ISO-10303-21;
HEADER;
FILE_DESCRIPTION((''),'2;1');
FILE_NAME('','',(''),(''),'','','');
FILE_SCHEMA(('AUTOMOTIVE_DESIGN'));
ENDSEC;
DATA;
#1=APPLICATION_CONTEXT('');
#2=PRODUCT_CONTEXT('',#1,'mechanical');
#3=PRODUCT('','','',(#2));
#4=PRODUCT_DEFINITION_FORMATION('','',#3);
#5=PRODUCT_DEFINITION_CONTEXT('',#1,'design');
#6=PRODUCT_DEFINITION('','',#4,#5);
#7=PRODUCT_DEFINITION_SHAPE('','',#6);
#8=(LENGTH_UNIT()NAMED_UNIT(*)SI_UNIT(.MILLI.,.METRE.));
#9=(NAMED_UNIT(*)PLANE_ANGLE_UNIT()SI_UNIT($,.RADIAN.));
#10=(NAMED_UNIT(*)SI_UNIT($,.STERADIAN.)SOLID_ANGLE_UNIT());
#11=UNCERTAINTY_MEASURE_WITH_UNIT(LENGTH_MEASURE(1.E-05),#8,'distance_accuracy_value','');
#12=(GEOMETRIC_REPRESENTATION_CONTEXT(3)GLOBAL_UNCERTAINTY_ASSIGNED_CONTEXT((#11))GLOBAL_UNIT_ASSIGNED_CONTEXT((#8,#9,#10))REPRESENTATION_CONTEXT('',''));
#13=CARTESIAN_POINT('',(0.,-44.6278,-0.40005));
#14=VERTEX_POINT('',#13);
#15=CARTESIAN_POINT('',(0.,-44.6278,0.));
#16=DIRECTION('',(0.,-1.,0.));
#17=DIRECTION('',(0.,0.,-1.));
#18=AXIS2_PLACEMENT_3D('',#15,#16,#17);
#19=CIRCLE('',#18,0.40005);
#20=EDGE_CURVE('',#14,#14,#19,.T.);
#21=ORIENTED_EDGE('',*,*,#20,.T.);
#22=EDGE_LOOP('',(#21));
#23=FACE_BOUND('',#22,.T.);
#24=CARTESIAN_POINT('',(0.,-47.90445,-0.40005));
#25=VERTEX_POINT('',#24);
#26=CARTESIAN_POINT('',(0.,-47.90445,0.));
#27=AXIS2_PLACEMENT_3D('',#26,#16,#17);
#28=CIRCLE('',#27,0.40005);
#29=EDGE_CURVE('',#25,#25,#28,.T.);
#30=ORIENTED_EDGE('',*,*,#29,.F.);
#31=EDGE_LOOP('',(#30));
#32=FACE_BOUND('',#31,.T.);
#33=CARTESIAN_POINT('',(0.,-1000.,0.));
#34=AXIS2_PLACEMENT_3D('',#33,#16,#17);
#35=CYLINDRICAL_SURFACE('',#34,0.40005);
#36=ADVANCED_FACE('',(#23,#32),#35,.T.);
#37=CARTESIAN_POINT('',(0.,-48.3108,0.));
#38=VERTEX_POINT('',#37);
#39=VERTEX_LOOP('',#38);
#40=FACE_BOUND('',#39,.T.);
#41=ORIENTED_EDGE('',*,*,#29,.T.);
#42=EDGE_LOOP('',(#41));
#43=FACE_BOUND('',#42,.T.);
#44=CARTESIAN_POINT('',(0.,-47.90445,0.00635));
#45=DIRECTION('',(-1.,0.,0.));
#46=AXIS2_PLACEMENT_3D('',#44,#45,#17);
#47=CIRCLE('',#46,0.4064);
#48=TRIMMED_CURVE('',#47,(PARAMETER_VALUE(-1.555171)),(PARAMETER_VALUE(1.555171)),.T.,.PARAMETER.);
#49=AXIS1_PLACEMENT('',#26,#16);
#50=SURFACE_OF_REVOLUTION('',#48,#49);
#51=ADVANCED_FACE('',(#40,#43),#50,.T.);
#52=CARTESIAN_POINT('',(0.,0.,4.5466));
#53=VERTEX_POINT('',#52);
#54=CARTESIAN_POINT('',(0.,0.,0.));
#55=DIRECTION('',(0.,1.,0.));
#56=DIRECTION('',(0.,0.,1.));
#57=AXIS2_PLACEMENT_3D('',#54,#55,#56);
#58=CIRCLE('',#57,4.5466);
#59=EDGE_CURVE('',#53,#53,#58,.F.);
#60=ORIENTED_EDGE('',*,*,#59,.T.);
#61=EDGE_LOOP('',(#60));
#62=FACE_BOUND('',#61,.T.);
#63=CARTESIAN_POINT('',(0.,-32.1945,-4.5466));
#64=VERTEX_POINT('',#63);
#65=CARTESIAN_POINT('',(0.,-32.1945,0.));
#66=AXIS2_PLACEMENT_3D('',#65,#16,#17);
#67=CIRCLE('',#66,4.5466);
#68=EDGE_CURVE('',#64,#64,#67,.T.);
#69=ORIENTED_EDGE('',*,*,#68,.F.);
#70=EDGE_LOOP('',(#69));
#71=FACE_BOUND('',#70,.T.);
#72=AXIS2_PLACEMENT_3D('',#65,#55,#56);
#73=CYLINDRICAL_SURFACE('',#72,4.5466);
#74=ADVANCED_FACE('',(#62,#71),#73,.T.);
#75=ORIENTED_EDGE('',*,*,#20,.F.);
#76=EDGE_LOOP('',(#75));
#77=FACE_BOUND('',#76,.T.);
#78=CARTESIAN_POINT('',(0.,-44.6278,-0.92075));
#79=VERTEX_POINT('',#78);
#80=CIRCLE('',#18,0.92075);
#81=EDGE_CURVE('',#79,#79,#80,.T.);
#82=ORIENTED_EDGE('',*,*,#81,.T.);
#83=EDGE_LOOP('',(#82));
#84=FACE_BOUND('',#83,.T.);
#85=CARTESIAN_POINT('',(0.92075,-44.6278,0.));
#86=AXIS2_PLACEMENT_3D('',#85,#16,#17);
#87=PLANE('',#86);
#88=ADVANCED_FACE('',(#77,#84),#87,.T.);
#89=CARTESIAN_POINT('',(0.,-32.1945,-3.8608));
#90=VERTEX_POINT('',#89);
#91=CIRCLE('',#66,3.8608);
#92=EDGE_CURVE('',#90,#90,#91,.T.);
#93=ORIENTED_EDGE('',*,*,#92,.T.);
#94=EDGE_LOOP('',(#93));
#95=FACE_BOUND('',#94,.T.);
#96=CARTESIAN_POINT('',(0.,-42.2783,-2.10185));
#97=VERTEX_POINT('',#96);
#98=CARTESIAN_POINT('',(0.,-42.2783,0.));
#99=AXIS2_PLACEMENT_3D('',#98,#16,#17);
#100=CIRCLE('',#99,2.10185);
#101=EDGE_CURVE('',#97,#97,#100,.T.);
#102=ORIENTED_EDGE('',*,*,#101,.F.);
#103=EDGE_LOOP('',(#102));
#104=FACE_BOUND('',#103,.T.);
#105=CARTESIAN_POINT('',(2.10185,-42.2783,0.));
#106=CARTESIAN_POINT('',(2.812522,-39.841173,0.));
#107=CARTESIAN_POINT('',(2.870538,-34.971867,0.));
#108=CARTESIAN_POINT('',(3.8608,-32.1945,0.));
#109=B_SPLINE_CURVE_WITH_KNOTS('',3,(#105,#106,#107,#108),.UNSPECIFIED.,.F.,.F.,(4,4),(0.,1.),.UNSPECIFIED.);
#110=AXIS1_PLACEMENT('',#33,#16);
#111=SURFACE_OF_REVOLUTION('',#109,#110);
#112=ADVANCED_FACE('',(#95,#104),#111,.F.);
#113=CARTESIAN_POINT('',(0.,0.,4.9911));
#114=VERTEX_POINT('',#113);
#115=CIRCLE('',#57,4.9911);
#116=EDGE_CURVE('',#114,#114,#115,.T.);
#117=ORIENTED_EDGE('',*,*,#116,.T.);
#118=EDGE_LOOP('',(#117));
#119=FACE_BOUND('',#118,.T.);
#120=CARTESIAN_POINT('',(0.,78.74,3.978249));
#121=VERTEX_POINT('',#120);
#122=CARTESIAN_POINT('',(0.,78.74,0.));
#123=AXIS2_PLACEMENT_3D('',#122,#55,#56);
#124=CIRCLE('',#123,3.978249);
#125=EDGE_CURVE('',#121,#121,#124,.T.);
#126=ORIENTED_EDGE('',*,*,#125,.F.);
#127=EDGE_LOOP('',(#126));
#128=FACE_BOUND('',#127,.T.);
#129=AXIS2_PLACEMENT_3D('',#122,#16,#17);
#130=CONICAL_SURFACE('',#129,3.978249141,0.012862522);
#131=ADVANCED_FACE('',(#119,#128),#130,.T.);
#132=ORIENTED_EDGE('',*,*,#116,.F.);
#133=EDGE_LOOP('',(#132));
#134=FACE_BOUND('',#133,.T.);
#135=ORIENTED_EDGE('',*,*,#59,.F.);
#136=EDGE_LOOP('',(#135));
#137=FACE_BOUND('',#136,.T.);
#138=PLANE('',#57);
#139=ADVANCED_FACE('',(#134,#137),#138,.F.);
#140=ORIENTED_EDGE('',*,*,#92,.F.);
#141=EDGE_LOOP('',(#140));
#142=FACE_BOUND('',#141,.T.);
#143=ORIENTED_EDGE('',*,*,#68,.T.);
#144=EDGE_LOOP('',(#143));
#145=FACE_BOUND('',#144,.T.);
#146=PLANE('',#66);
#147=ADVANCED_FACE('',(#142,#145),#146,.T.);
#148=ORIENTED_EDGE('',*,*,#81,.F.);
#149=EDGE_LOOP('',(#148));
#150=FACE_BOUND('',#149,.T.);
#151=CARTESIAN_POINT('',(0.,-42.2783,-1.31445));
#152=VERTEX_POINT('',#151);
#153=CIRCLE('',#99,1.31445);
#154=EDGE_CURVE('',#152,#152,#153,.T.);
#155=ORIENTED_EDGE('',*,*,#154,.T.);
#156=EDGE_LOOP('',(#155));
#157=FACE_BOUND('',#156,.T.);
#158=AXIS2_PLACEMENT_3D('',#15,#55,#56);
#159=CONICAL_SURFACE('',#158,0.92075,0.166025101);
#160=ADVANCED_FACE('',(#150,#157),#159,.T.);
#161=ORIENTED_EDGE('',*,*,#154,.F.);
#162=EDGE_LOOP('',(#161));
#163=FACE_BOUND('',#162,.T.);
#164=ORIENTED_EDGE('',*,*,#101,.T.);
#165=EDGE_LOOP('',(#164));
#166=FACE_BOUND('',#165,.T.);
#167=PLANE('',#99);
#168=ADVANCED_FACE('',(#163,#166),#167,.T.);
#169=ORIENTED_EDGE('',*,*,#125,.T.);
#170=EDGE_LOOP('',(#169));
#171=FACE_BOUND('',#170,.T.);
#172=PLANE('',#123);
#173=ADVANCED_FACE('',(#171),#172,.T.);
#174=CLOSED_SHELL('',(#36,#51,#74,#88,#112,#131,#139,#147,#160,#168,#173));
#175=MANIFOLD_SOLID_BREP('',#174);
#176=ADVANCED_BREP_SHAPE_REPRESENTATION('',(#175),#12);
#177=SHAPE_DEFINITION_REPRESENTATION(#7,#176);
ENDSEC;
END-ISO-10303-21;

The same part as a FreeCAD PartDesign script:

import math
import FreeCAD as App
import Part
import Sketcher
Q = App.Units.Quantity


def add_polygon(sketch, points):
    """Adds a closed chain of lines whose ends are joined by coincident constraints."""
    first, n = sketch.GeometryCount, len(points)
    for a, b in zip(points, points[1:] + points[:1]):
        sketch.addGeometry(Part.LineSegment(App.Vector(*a, 0), App.Vector(*b, 0)), False)
    for i in range(n):
        sketch.addConstraint(Sketcher.Constraint("Coincident", first + i, 2, first + (i + 1) % n, 1))

doc = App.newDocument("Part")
body = doc.addObject("PartDesign::Body", "Body")

# Sketch on XZ plane
sketch1 = doc.addObject("Sketcher::SketchObject", "Sketch")
body.addObject(sketch1)
sketch1.AttachmentSupport = (doc.XZ_Plane, [""])
sketch1.MapMode = "FlatFace"
sketch1.addGeometry(Part.Circle(App.Vector(0, 0, 0), App.Vector(0, 0, 1), 5), False)
sketch1.addConstraint(Sketcher.Constraint("Coincident", 0, 3, -1, 1))
sketch1.addConstraint(Sketcher.Constraint("Diameter", 0, Q("0.393 in")))

# Sketch on XZ plane
sketch2 = doc.addObject("Sketcher::SketchObject", "Sketch001")
body.addObject(sketch2)
sketch2.AttachmentSupport = (doc.XZ_Plane, [""])
sketch2.MapMode = "FlatFace"
sketch2.AttachmentOffset = App.Placement(App.Vector(0, 0, -3.1 * 25.4), App.Rotation())
sketch2.addGeometry(Part.Circle(App.Vector(0, 0, 0), App.Vector(0, 0, 1), 4), False)
sketch2.addConstraint(Sketcher.Constraint("Coincident", 0, 3, -1, 1))
sketch2.addConstraint(Sketcher.Constraint("Diameter", 0, Q("7.956498 mm")))

additiveloft = doc.addObject("PartDesign::AdditiveLoft", "AdditiveLoft")
body.addObject(additiveloft)
additiveloft.Profile = sketch1
additiveloft.Sections = [sketch2]

# Sketch on XZ plane
sketch3 = doc.addObject("Sketcher::SketchObject", "Sketch002")
body.addObject(sketch3)
sketch3.AttachmentSupport = (doc.XZ_Plane, [""])
sketch3.MapMode = "FlatFace"
sketch3.addGeometry(Part.Circle(App.Vector(0, 0, 0), App.Vector(0, 0, 1), 4.5), False)
sketch3.addConstraint(Sketcher.Constraint("Coincident", 0, 3, -1, 1))
sketch3.addConstraint(Sketcher.Constraint("Diameter", 0, Q("0.358 in")))
pad1 = doc.addObject("PartDesign::Pad", "Pad")
body.addObject(pad1)
pad1.Profile = sketch3
pad1.Length = Q("1.2675 in")

# Sketch on XY plane
sketch4 = doc.addObject("Sketcher::SketchObject", "Sketch003")
body.addObject(sketch4)
sketch4.AttachmentSupport = (doc.XY_Plane, [""])
sketch4.MapMode = "FlatFace"
sketch4.addGeometry(Part.LineSegment(App.Vector(3.8608, -32.1945, 0), App.Vector(0, -32.1945, 0)), False)
sketch4.addGeometry(Part.LineSegment(App.Vector(0, -32.1945, 0), App.Vector(0, -42.2783, 0)), False)
sketch4.addGeometry(Part.LineSegment(App.Vector(0, -42.2783, 0), App.Vector(2.10185, -42.2783, 0)), False)
sketch4.addGeometry(Part.BSplineCurve([App.Vector(3.8608, -32.1945, 0), App.Vector(2.870538, -34.971867, 0), App.Vector(2.812522, -39.841173, 0), App.Vector(2.10185, -42.2783, 0)], [4, 4], [0, 1], False, 3, [1, 1, 1, 1], False), False)
sketch4.addConstraint(Sketcher.Constraint("Block", 3))
sketch4.addConstraint(Sketcher.Constraint("Coincident", 0, 2, 1, 1))
sketch4.addConstraint(Sketcher.Constraint("Coincident", 1, 2, 2, 1))
sketch4.addConstraint(Sketcher.Constraint("Coincident", 2, 2, 3, 2))
sketch4.addConstraint(Sketcher.Constraint("Coincident", 3, 1, 0, 1))
sketch4.addConstraint(Sketcher.Constraint("Horizontal", 0))
sketch4.addConstraint(Sketcher.Constraint("Vertical", 1))
sketch4.addConstraint(Sketcher.Constraint("Horizontal", 2))
sketch4.addConstraint(Sketcher.Constraint("PointOnObject", 0, 2, -2))
revolution = doc.addObject("PartDesign::Revolution", "Revolution")
body.addObject(revolution)
revolution.Profile = sketch4
revolution.ReferenceAxis = (sketch4, ["V_Axis"])
revolution.Angle = 360

# Sketch on XY plane
sketch5 = doc.addObject("Sketcher::SketchObject", "Sketch004")
body.addObject(sketch5)
sketch5.AttachmentSupport = (doc.XY_Plane, [""])
sketch5.MapMode = "FlatFace"
add_polygon(sketch5, [(1.3, -42.3), (0, -42.3), (0, -44.6), (0.9, -44.6)])  # lines 0-3
sketch5.addConstraint(Sketcher.Constraint("Horizontal", 0))
sketch5.addConstraint(Sketcher.Constraint("Vertical", 1))
sketch5.addConstraint(Sketcher.Constraint("Horizontal", 2))
sketch5.addConstraint(Sketcher.Constraint("PointOnObject", 0, 2, -2))
sketch5.addConstraint(Sketcher.Constraint("DistanceY", 1, 2, 1, 1, Q("0.0925 in")))
sketch5.addConstraint(Sketcher.Constraint("DistanceY", 1, 2, -1, 1, Q("1.757 in")))
sketch5.addConstraint(Sketcher.Constraint("DistanceX", 2, 2, 3, 2, Q("0.0155 in")))
sketch5.addConstraint(Sketcher.Constraint("DistanceX", 0, 2, 0, 1, Q("1.31445 mm")))
revolution2 = doc.addObject("PartDesign::Revolution", "Revolution001")
body.addObject(revolution2)
revolution2.Profile = sketch5
revolution2.ReferenceAxis = (sketch5, ["V_Axis"])
revolution2.Angle = 360

# Sketch on XY plane
sketch6 = doc.addObject("Sketcher::SketchObject", "Sketch005")
body.addObject(sketch6)
sketch6.AttachmentSupport = (doc.XY_Plane, [""])
sketch6.MapMode = "FlatFace"
sketch6.addGeometry(Part.LineSegment(App.Vector(0.4, -44.63, 0), App.Vector(0, -44.63, 0)), False)
sketch6.addGeometry(Part.LineSegment(App.Vector(0, -44.63, 0), App.Vector(0, -48.31, 0)), False)
sketch6.addGeometry(Part.ArcOfCircle(Part.Circle(App.Vector(-0.01, -47.9, 0), App.Vector(0, 0, 1), 0.41), math.radians(-89), math.radians(0)), False)
sketch6.addGeometry(Part.LineSegment(App.Vector(0.4, -47.9, 0), App.Vector(0.4, -44.63, 0)), False)
sketch6.addConstraint(Sketcher.Constraint("Coincident", 0, 2, 1, 1))
sketch6.addConstraint(Sketcher.Constraint("Coincident", 1, 2, 2, 1))
sketch6.addConstraint(Sketcher.Constraint("Tangent", 2, 2, 3, 1))
sketch6.addConstraint(Sketcher.Constraint("Coincident", 3, 2, 0, 1))
sketch6.addConstraint(Sketcher.Constraint("Horizontal", 0))
sketch6.addConstraint(Sketcher.Constraint("Vertical", 1))
sketch6.addConstraint(Sketcher.Constraint("Vertical", 3))
sketch6.addConstraint(Sketcher.Constraint("PointOnObject", 0, 2, -2))
sketch6.addConstraint(Sketcher.Constraint("Radius", 2, Q("0.016 in")))
sketch6.addConstraint(Sketcher.Constraint("DistanceY", 1, 2, 1, 1, Q("0.145 in")))
sketch6.addConstraint(Sketcher.Constraint("DistanceY", 0, 2, -1, 1, Q("1.757 in")))
sketch6.addConstraint(Sketcher.Constraint("DistanceX", 0, 2, 0, 1, Q("0.40005 mm")))
revolution3 = doc.addObject("PartDesign::Revolution", "Revolution002")
body.addObject(revolution3)
revolution3.Profile = sketch6
revolution3.ReferenceAxis = (sketch6, ["V_Axis"])
revolution3.Angle = 360

doc.recompute()
